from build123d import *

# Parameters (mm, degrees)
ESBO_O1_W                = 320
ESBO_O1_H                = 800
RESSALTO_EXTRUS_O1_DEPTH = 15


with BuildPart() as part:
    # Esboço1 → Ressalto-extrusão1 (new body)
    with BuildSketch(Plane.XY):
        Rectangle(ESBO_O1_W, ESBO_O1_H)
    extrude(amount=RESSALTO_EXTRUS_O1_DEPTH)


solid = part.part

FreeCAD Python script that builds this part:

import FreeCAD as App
import Part
import Sketcher

V = App.Vector
Q = App.Units.Quantity


def add_polygon(sketch, points):
    """Adds a closed chain of lines whose ends are joined by coincident constraints."""
    first, n = sketch.GeometryCount, len(points)
    for a, b in zip(points, points[1:] + points[:1]):
        sketch.addGeometry(Part.LineSegment(App.Vector(*a, 0), App.Vector(*b, 0)), False)
    for i in range(n):
        sketch.addConstraint(Sketcher.Constraint("Coincident", first + i, 2, first + (i + 1) % n, 1))

doc = App.newDocument("Part")
body = doc.addObject("PartDesign::Body", "Body")

sketch1 = doc.addObject("Sketcher::SketchObject", "Sketch")
body.addObject(sketch1)
sketch1.AttachmentSupport = (doc.XY_Plane, [""])
sketch1.MapMode = "FlatFace"
add_polygon(sketch1, [(-160, 400), (-160, -400), (160, -400), (160, 400)])
sketch1.addConstraint([
    Sketcher.Constraint("Vertical", 0),
    Sketcher.Constraint("Horizontal", 1),
    Sketcher.Constraint("Vertical", 2),
    Sketcher.Constraint("Horizontal", 3),
    Sketcher.Constraint("Symmetric", 0, 2, 2, 2, -1, 1),
    Sketcher.Constraint("DistanceX", 1, 1, 1, 2, Q("320 mm")),
    Sketcher.Constraint("DistanceY", 0, 2, 0, 1, Q("800 mm")),
])
pad1 = doc.addObject("PartDesign::Pad", "Pad")
body.addObject(pad1)
pad1.Profile = sketch1
pad1.Length = 15

doc.recompute()
